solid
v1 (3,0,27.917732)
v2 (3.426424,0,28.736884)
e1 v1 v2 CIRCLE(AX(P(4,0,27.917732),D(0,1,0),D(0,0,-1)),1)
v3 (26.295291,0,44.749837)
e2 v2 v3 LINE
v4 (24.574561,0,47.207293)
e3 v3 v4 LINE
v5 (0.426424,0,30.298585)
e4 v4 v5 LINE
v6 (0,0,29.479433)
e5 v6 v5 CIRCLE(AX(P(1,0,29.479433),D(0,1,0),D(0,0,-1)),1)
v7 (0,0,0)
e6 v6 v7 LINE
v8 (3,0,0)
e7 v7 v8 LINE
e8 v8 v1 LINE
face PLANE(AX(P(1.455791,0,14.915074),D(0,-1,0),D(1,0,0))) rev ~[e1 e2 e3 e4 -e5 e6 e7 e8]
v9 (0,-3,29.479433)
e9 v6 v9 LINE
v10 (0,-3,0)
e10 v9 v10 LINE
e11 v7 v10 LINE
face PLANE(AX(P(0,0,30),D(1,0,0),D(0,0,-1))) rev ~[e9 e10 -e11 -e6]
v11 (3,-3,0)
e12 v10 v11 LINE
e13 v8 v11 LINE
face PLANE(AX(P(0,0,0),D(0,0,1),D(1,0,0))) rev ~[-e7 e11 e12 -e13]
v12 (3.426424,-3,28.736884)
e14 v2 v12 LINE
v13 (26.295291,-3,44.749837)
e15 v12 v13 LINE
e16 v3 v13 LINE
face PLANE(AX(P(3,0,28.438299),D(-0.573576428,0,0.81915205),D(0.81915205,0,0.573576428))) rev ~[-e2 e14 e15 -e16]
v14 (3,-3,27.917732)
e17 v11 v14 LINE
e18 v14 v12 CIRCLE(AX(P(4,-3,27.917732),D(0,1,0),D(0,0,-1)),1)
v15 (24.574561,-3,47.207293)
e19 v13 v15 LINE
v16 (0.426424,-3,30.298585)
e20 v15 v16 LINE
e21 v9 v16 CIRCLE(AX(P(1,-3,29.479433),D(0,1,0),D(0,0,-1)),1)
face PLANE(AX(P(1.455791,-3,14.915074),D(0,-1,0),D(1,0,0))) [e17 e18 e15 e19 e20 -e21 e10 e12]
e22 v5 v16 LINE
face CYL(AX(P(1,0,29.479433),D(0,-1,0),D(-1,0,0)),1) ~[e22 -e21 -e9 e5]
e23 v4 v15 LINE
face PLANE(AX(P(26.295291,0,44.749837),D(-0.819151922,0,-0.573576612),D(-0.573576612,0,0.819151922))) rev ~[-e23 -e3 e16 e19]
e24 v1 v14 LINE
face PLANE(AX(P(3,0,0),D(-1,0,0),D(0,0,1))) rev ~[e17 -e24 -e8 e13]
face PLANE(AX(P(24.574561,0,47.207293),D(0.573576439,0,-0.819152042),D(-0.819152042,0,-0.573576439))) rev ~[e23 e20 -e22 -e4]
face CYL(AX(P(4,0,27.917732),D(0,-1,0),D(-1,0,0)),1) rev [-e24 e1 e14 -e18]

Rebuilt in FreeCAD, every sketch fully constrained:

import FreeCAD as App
import Part
import Sketcher

V = App.Vector
Q = App.Units.Quantity


def edges_at(feature, points):
    """Names of the edges that pass closest to the given points."""
    edges = feature.Shape.Edges
    near = lambda p: min(range(len(edges)), key=lambda i: edges[i].distToShape(Part.Vertex(*p))[0])
    return sorted({f"Edge{near(p) + 1}" for p in points})


def add_polygon(sketch, points):
    """Adds a closed chain of lines whose ends are joined by coincident constraints."""
    first, n = sketch.GeometryCount, len(points)
    for a, b in zip(points, points[1:] + points[:1]):
        sketch.addGeometry(Part.LineSegment(App.Vector(*a, 0), App.Vector(*b, 0)), False)
    for i in range(n):
        sketch.addConstraint(Sketcher.Constraint("Coincident", first + i, 2, first + (i + 1) % n, 1))

doc = App.newDocument("Part")
params = doc.addObject("Spreadsheet::Sheet", "Params")
for row, (alias, value) in enumerate([
    ("sketch1_width", "3 mm"),
    ("sketch1_height", "30 mm"),
    ("sketch1_length", "3 mm"),
    ("sketch1_length2", "30 mm"),
    ("pad1_length", "3 mm"),
    ("fillet_radius", "1 mm"),
], start=1):
    params.set(f"A{row}", alias)
    params.set(f"B{row}", "=" + value)
    params.setAlias(f"B{row}", alias)

body = doc.addObject("PartDesign::Body", "Body")

sketch1 = doc.addObject("Sketcher::SketchObject", "Sketch")
body.addObject(sketch1)
sketch1.AttachmentSupport = (doc.XZ_Plane, [""])
sketch1.MapMode = "FlatFace"
add_polygon(sketch1, [(0, 30), (0, 0), (3, 0), (3, 28.4), (26.3, 44.7), (24.6, 47.2)])
sketch1.addConstraint([
    Sketcher.Constraint("Vertical", 0),
    Sketcher.Constraint("Horizontal", 1),
    Sketcher.Constraint("Vertical", 2),
    Sketcher.Constraint("Coincident", 0, 2, -1, 1),
    Sketcher.Constraint("Perpendicular", 3, 4),
    Sketcher.Constraint("Perpendicular", 4, 5),
    Sketcher.Constraint("DistanceX", 1, 1, 1, 2, Q("3 mm")),
    Sketcher.Constraint("DistanceY", 0, 2, 0, 1, Q("30 mm")),
    Sketcher.Constraint("Angle", 3, Q("34.999999 deg")),
    Sketcher.Constraint("Distance", 4, Q("3 mm")),
    Sketcher.Constraint("Distance", 5, Q("30 mm")),
])
sketch1.setExpression("Constraints[12]", "Params.sketch1_width")
sketch1.setExpression("Constraints[13]", "Params.sketch1_height")
sketch1.setExpression("Constraints[15]", "Params.sketch1_length")
sketch1.setExpression("Constraints[16]", "Params.sketch1_length2")
pad1 = doc.addObject("PartDesign::Pad", "Pad")
body.addObject(pad1)
pad1.Profile = sketch1
pad1.setExpression("Length", "Params.pad1_length")
doc.recompute()

fillet = doc.addObject("PartDesign::Fillet", "Fillet")
body.addObject(fillet)
fillet.Base = (pad1, edges_at(pad1, [(0, -1.5, 30), (3, -1.5, 28.438)]))
fillet.setExpression("Radius", "Params.fillet_radius")

doc.recompute()
